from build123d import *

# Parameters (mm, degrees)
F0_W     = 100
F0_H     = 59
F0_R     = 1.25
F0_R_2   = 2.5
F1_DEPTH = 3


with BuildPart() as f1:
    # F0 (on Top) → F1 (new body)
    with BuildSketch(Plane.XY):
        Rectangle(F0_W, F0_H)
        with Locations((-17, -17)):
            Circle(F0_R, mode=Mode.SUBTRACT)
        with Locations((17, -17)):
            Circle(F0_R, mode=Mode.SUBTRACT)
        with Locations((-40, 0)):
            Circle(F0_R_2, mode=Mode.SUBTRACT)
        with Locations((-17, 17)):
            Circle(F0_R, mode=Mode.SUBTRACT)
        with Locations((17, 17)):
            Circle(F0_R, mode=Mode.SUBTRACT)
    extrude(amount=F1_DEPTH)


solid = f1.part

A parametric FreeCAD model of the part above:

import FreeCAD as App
import Part
import Sketcher
Q = App.Units.Quantity

doc = App.newDocument("Part")
params = doc.addObject("Spreadsheet::Sheet", "Params")
for row, (alias, value) in enumerate([
    ("sketch1_diameter", "5 mm"),
    ("sketch1_diameter2", "2.5 mm"),
    ("sketch1_width", "100 mm"),
    ("sketch1_height", "59 mm"),
    ("pad1_length", "3 mm"),
], start=1):
    params.set(f"A{row}", alias)
    params.set(f"B{row}", "=" + value)
    params.setAlias(f"B{row}", alias)

body = doc.addObject("PartDesign::Body", "Body")

# Sketch on XY plane
sketch1 = body.newObject("Sketcher::SketchObject", "Sketch")
sketch1.AttachmentSupport = (doc.getObject("XY_Plane"), [""])
sketch1.MapMode = "FlatFace"
sketch1.addGeometry(Part.LineSegment(App.Vector(-50, 29.5, 0), App.Vector(-50, -29.5, 0)), False)
sketch1.addGeometry(Part.LineSegment(App.Vector(-50, -29.5, 0), App.Vector(50, -29.5, 0)), False)
sketch1.addGeometry(Part.LineSegment(App.Vector(50, -29.5, 0), App.Vector(50, 29.5, 0)), False)
sketch1.addGeometry(Part.LineSegment(App.Vector(50, 29.5, 0), App.Vector(-50, 29.5, 0)), False)
sketch1.addGeometry(Part.Circle(App.Vector(-17, -17, 0), App.Vector(0, 0, 1), 1.25), False)
sketch1.addGeometry(Part.Circle(App.Vector(17, -17, 0), App.Vector(0, 0, 1), 1.25), False)
sketch1.addGeometry(Part.Circle(App.Vector(-40, 0, 0), App.Vector(0, 0, 1), 2.5), False)
sketch1.addGeometry(Part.Circle(App.Vector(-17, 17, 0), App.Vector(0, 0, 1), 1.25), False)
sketch1.addGeometry(Part.Circle(App.Vector(17, 17, 0), App.Vector(0, 0, 1), 1.25), False)
sketch1.addConstraint(Sketcher.Constraint("Coincident", 0, 2, 1, 1))
sketch1.addConstraint(Sketcher.Constraint("Coincident", 1, 2, 2, 1))
sketch1.addConstraint(Sketcher.Constraint("Coincident", 2, 2, 3, 1))
sketch1.addConstraint(Sketcher.Constraint("Coincident", 3, 2, 0, 1))
sketch1.addConstraint(Sketcher.Constraint("Vertical", 0))
sketch1.addConstraint(Sketcher.Constraint("Horizontal", 1))
sketch1.addConstraint(Sketcher.Constraint("Vertical", 2))
sketch1.addConstraint(Sketcher.Constraint("Horizontal", 3))
sketch1.addConstraint(Sketcher.Constraint("Equal", 4, 5))
sketch1.addConstraint(Sketcher.Constraint("Equal", 5, 7))
sketch1.addConstraint(Sketcher.Constraint("Equal", 7, 8))
sketch1.addConstraint(Sketcher.Constraint("Symmetric", 5, 3, 7, 3, -1, 1))
sketch1.addConstraint(Sketcher.Constraint("Symmetric", 4, 3, 8, 3, -1, 1))
sketch1.addConstraint(Sketcher.Constraint("Symmetric", 0, 2, 2, 2, -1, 1))
sketch1.addConstraint(Sketcher.Constraint("Symmetric", 4, 3, 5, 3, -2))
sketch1.addConstraint(Sketcher.Constraint("PointOnObject", 6, 3, -1))
sketch1.addConstraint(Sketcher.Constraint("Diameter", 6, Q("5 mm")))
sketch1.addConstraint(Sketcher.Constraint("Diameter", 4, Q("2.5 mm")))
sketch1.addConstraint(Sketcher.Constraint("DistanceX", 1, 1, 1, 2, Q("100 mm")))
sketch1.addConstraint(Sketcher.Constraint("DistanceY", 0, 2, 0, 1, Q("59 mm")))
sketch1.addConstraint(Sketcher.Constraint("DistanceX", 4, 3, -1, 1, Q("17 mm")))
sketch1.addConstraint(Sketcher.Constraint("DistanceY", 4, 3, -1, 1, Q("17 mm")))
sketch1.addConstraint(Sketcher.Constraint("DistanceX", 6, 3, -1, 1, Q("40 mm")))
sketch1.setExpression("Constraints[16]", "Params.sketch1_diameter")
sketch1.setExpression("Constraints[17]", "Params.sketch1_diameter2")
sketch1.setExpression("Constraints[18]", "Params.sketch1_width")
sketch1.setExpression("Constraints[19]", "Params.sketch1_height")
pad1 = body.newObject("PartDesign::Pad", "Pad")
pad1.Profile = sketch1
pad1.setExpression("Length", "Params.pad1_length")

doc.recompute()
